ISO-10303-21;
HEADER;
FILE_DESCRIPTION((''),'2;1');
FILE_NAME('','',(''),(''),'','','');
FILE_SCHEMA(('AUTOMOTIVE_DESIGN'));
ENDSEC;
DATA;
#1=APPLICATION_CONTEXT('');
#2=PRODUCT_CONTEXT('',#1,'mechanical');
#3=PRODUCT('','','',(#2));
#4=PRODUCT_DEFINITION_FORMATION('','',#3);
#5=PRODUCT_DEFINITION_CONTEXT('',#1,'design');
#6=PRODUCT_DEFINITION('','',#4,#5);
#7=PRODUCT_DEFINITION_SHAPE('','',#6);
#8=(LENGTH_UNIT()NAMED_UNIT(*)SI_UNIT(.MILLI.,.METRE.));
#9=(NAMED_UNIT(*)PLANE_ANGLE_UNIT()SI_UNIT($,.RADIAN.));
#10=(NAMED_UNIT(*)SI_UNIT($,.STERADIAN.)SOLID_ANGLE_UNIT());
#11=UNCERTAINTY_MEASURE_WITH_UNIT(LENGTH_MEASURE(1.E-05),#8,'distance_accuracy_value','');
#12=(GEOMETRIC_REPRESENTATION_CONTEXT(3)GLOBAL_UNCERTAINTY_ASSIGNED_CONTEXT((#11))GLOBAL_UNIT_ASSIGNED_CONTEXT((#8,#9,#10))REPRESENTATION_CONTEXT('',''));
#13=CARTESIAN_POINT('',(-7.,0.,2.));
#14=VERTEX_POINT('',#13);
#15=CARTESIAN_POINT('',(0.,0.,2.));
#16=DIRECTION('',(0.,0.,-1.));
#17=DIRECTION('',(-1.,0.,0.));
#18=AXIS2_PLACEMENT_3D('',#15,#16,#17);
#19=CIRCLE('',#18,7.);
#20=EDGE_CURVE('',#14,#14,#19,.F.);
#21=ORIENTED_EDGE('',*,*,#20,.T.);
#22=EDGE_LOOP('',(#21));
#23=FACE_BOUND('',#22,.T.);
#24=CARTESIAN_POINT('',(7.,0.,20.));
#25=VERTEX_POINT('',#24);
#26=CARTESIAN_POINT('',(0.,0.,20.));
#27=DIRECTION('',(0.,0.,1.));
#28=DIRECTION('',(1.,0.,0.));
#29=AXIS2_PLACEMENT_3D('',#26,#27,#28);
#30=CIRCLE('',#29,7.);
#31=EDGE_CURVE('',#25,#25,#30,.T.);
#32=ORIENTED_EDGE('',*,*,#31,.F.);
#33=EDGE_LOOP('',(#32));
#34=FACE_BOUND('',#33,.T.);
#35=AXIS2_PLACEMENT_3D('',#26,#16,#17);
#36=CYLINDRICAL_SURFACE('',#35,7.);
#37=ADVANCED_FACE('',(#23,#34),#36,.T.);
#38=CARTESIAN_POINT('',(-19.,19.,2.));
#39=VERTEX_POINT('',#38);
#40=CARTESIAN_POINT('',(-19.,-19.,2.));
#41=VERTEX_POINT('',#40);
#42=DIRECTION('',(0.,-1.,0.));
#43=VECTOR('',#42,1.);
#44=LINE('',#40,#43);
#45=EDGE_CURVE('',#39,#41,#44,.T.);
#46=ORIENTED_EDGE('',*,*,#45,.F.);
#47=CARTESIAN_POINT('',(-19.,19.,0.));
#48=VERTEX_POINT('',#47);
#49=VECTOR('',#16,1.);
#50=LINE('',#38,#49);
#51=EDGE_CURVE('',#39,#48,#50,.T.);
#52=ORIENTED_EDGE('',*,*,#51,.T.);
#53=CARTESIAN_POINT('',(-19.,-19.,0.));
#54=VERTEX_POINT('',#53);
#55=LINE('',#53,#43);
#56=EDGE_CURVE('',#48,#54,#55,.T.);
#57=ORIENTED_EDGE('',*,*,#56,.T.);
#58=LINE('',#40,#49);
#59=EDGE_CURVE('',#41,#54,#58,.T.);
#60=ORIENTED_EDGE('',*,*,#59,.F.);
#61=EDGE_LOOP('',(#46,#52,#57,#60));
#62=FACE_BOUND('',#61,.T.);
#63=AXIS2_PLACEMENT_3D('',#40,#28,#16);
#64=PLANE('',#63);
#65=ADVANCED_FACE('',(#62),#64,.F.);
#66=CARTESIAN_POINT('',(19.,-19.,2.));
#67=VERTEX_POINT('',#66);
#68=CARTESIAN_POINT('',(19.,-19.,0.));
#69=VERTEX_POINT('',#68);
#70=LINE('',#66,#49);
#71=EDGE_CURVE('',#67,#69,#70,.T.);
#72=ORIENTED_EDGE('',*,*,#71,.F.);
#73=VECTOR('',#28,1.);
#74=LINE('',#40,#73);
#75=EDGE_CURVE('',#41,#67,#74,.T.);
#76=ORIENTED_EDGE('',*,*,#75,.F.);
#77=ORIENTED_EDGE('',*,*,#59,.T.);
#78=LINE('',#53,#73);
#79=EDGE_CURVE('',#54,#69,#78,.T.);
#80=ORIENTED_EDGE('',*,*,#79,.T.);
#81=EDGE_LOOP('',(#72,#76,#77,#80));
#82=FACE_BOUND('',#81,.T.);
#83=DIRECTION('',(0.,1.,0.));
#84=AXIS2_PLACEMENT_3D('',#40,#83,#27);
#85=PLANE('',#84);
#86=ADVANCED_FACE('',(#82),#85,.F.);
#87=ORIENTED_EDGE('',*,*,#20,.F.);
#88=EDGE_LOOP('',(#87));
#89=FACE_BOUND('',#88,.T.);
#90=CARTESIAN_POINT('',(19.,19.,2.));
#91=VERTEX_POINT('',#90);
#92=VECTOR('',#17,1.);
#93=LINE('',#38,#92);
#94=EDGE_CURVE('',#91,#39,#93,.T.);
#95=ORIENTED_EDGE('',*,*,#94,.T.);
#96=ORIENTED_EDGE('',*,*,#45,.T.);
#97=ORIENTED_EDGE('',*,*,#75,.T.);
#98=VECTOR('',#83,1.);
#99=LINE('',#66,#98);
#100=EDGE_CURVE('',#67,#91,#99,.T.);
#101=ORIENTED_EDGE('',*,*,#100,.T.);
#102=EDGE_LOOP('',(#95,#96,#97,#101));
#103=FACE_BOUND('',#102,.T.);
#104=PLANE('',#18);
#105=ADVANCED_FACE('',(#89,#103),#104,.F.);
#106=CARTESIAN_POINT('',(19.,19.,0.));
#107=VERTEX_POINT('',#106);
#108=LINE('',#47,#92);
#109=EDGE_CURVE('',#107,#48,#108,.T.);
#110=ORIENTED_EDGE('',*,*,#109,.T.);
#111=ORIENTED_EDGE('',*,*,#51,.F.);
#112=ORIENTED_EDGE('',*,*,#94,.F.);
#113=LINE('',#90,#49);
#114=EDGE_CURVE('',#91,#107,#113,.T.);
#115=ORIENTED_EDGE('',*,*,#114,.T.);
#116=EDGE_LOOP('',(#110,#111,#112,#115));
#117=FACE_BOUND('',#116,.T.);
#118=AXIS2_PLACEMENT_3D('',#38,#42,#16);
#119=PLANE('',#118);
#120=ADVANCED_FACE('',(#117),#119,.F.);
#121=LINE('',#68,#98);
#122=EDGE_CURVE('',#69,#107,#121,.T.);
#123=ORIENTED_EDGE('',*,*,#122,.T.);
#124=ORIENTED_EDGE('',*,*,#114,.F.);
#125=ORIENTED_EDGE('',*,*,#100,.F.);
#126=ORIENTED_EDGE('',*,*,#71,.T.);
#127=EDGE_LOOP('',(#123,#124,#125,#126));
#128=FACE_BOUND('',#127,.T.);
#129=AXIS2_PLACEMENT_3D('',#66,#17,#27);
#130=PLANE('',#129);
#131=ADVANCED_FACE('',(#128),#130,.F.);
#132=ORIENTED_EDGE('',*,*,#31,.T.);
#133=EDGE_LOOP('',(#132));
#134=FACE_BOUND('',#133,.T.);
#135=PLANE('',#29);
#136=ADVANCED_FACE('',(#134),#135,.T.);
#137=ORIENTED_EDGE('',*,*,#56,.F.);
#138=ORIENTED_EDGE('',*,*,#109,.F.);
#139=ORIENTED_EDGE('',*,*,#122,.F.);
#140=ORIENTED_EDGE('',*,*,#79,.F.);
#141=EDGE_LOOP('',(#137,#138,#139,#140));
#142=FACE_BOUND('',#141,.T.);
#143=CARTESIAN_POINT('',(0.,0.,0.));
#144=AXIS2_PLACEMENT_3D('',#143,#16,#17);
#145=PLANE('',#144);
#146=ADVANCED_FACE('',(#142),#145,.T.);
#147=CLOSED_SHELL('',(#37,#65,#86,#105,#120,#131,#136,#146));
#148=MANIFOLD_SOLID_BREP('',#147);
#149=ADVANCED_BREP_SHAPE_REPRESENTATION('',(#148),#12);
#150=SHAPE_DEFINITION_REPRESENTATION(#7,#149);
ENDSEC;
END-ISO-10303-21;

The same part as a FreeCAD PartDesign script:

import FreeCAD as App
import Part
import Sketcher

V = App.Vector


def add_polygon(sketch, points):
    """Adds a closed chain of lines whose ends are joined by coincident constraints."""
    first, n = sketch.GeometryCount, len(points)
    for a, b in zip(points, points[1:] + points[:1]):
        sketch.addGeometry(Part.LineSegment(App.Vector(*a, 0), App.Vector(*b, 0)), False)
    for i in range(n):
        sketch.addConstraint(Sketcher.Constraint("Coincident", first + i, 2, first + (i + 1) % n, 1))

doc = App.newDocument("Part")
params = doc.addObject("Spreadsheet::Sheet", "Params")
for row, (alias, value) in enumerate([
    ("sketch1_width", "38 mm"),
    ("pad1_length", "2 mm"),
    ("sketch2_diameter", "14 mm"),
    ("pad2_length", "20 mm"),
], start=1):
    params.set(f"A{row}", alias)
    params.set(f"B{row}", "=" + value)
    params.setAlias(f"B{row}", alias)

body = doc.addObject("PartDesign::Body", "Body")

# Sketch on XY plane
sketch1 = body.newObject("Sketcher::SketchObject", "Sketch")
sketch1.AttachmentSupport = (doc.getObject("XY_Plane"), [""])
sketch1.MapMode = "FlatFace"
add_polygon(sketch1, [(-19, 19), (-19, -19), (19, -19), (19, 19)])  # lines 0-3
sketch1.addConstraint(Sketcher.Constraint("Vertical", 0))
sketch1.addConstraint(Sketcher.Constraint("Horizontal", 1))
sketch1.addConstraint(Sketcher.Constraint("Vertical", 2))
sketch1.addConstraint(Sketcher.Constraint("Horizontal", 3))
sketch1.addConstraint(Sketcher.Constraint("Symmetric", 0, 2, 2, 2, -1, 1))
sketch1.addConstraint(Sketcher.Constraint("Equal", 3, 0))
sketch1.addConstraint(Sketcher.Constraint("DistanceX", 1, 1, 1, 2, 38.0))
sketch1.setExpression("Constraints[10]", "Params.sketch1_width")
pad1 = body.newObject("PartDesign::Pad", "Pad")
pad1.Profile = sketch1
pad1.setExpression("Length", "Params.pad1_length")

# Sketch on XY plane
sketch2 = body.newObject("Sketcher::SketchObject", "Sketch001")
sketch2.AttachmentSupport = (doc.getObject("XY_Plane"), [""])
sketch2.MapMode = "FlatFace"
sketch2.addGeometry(Part.Circle(V(0, 0, 0), V(0, 0, 1), 7), False)
sketch2.addConstraint(Sketcher.Constraint("Coincident", 0, 3, -1, 1))
sketch2.addConstraint(Sketcher.Constraint("Diameter", 0, 14.0))
sketch2.setExpression("Constraints[1]", "Params.sketch2_diameter")
pad2 = body.newObject("PartDesign::Pad", "Pad001")
pad2.Profile = sketch2
pad2.setExpression("Length", "Params.pad2_length")

doc.recompute()
